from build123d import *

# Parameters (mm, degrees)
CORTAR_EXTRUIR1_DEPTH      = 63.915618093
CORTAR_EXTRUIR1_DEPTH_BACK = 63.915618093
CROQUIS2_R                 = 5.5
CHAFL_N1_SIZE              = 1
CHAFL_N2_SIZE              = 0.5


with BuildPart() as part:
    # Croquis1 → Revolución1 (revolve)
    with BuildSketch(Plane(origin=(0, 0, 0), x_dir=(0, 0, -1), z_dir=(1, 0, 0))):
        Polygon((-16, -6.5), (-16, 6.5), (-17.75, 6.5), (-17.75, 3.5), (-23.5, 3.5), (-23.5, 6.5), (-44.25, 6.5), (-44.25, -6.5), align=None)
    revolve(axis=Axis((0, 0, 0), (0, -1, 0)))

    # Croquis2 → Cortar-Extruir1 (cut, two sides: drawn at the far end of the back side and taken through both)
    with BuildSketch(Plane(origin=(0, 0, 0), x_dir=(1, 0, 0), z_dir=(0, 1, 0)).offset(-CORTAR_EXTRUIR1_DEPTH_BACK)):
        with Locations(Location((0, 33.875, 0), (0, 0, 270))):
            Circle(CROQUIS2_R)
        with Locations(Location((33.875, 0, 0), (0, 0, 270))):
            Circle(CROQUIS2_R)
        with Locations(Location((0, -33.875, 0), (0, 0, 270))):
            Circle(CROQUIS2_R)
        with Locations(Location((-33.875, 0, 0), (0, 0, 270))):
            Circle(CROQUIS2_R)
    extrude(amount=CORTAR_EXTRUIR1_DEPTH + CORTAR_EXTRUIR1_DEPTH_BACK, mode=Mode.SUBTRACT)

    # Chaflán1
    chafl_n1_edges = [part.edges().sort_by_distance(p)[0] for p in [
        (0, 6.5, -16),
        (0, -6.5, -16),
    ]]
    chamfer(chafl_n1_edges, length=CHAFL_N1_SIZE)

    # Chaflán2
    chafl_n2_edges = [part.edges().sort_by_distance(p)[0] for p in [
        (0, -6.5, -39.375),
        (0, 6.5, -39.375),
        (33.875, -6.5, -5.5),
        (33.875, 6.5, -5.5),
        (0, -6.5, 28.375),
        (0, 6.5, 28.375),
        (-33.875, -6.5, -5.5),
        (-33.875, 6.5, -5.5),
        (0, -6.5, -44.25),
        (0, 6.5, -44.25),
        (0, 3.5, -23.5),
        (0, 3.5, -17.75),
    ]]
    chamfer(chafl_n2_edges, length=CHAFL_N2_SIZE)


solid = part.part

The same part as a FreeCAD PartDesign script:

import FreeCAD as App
import Part
import Sketcher
from FreeCAD import Vector


def edges_at(feature, points):
    """Names of the edges that pass closest to the given points."""
    edges = feature.Shape.Edges
    near = lambda p: min(range(len(edges)), key=lambda i: edges[i].distToShape(Part.Vertex(*p))[0])
    return sorted({f"Edge{near(p) + 1}" for p in points})


def add_polygon(sketch, points):
    """Adds a closed chain of lines whose ends are joined by coincident constraints."""
    first, n = sketch.GeometryCount, len(points)
    for a, b in zip(points, points[1:] + points[:1]):
        sketch.addGeometry(Part.LineSegment(App.Vector(*a, 0), App.Vector(*b, 0)), False)
    for i in range(n):
        sketch.addConstraint(Sketcher.Constraint("Coincident", first + i, 2, first + (i + 1) % n, 1))

doc = App.newDocument("Part")
params = doc.addObject("Spreadsheet::Sheet", "Params")
for row, (alias, value) in enumerate([
    ("sketch1_width", "13 mm"),
    ("sketch1_width2", "3 mm"),
    ("sketch1_height", "1.75 mm"),
    ("sketch1_height2", "5.75 mm"),
    ("sketch1_height3", "20.75 mm"),
    ("revolution_angle", "360 deg"),
    ("sketch2_diameter", "11 mm"),
    ("chamfer_size", "1 mm"),
    ("chamfer2_size", "0.5 mm"),
], start=1):
    params.set(f"A{row}", alias)
    params.set(f"B{row}", "=" + value)
    params.setAlias(f"B{row}", alias)

body = doc.addObject("PartDesign::Body", "Body")

# Sketch on YZ plane
sketch1 = body.newObject("Sketcher::SketchObject", "Sketch")
sketch1.AttachmentSupport = (doc.getObject("YZ_Plane"), [""])
sketch1.MapMode = "FlatFace"
add_polygon(sketch1, [(-6.5, 16), (6.5, 16), (6.5, 17.75), (3.5, 17.75), (3.5, 23.5), (6.5, 23.5), (6.5, 44.25), (-6.5, 44.25)])  # lines 0-7
sketch1.addConstraint(Sketcher.Constraint("Horizontal", 0))
sketch1.addConstraint(Sketcher.Constraint("Vertical", 1))
sketch1.addConstraint(Sketcher.Constraint("Horizontal", 2))
sketch1.addConstraint(Sketcher.Constraint("Vertical", 3))
sketch1.addConstraint(Sketcher.Constraint("Horizontal", 4))
sketch1.addConstraint(Sketcher.Constraint("Vertical", 5))
sketch1.addConstraint(Sketcher.Constraint("Horizontal", 6))
sketch1.addConstraint(Sketcher.Constraint("Vertical", 7))
sketch1.addConstraint(Sketcher.Constraint("Vertical", 1, 2, 4, 2))
sketch1.addConstraint(Sketcher.Constraint("DistanceX", 0, 1, 0, 2, 13.0))
sketch1.addConstraint(Sketcher.Constraint("DistanceX", 2, 2, 2, 1, 3.0))
sketch1.addConstraint(Sketcher.Constraint("DistanceY", -1, 1, 0, 2, 16.0))
sketch1.addConstraint(Sketcher.Constraint("DistanceY", 1, 1, 1, 2, 1.75))
sketch1.addConstraint(Sketcher.Constraint("DistanceY", 3, 1, 3, 2, 5.75))
sketch1.addConstraint(Sketcher.Constraint("DistanceY", 5, 1, 5, 2, 20.75))
sketch1.addConstraint(Sketcher.Constraint("DistanceX", -1, 1, 0, 2, 6.5))
sketch1.setExpression("Constraints[17]", "Params.sketch1_width")
sketch1.setExpression("Constraints[18]", "Params.sketch1_width2")
sketch1.setExpression("Constraints[20]", "Params.sketch1_height")
sketch1.setExpression("Constraints[21]", "Params.sketch1_height2")
sketch1.setExpression("Constraints[22]", "Params.sketch1_height3")
revolution = body.newObject("PartDesign::Revolution", "Revolution")
revolution.Profile = sketch1
revolution.ReferenceAxis = (sketch1, ["H_Axis"])
revolution.setExpression("Angle", "Params.revolution_angle")

# Sketch on XZ plane
sketch2 = body.newObject("Sketcher::SketchObject", "Sketch001")
sketch2.AttachmentSupport = (doc.getObject("XZ_Plane"), [""])
sketch2.MapMode = "FlatFace"
sketch2.addGeometry(Part.Circle(Vector(0, -33.875, 0), Vector(0, 0, 1), 5.5), False)
sketch2.addGeometry(Part.Circle(Vector(33.875, 0, 0), Vector(0, 0, 1), 5.5), False)
sketch2.addGeometry(Part.Circle(Vector(0, 33.875, 0), Vector(0, 0, 1), 5.5), False)
sketch2.addGeometry(Part.Circle(Vector(-33.875, 0, 0), Vector(0, 0, 1), 5.5), False)
sketch2.addConstraint(Sketcher.Constraint("Equal", 0, 1))
sketch2.addConstraint(Sketcher.Constraint("Equal", 1, 2))
sketch2.addConstraint(Sketcher.Constraint("Equal", 2, 3))
sketch2.addConstraint(Sketcher.Constraint("Symmetric", 0, 3, 2, 3, -1, 1))
sketch2.addConstraint(Sketcher.Constraint("Symmetric", 1, 3, 3, 3, -1, 1))
sketch2.addConstraint(Sketcher.Constraint("PointOnObject", 0, 3, -2))
sketch2.addConstraint(Sketcher.Constraint("PointOnObject", 1, 3, -1))
sketch2.addConstraint(Sketcher.Constraint("Diameter", 0, 11.0))
sketch2.addConstraint(Sketcher.Constraint("DistanceY", 0, 3, 2, 3, 67.75))
sketch2.addConstraint(Sketcher.Constraint("DistanceX", 3, 3, 1, 3, 67.75))
sketch2.setExpression("Constraints[7]", "Params.sketch2_diameter")
pocket1 = body.newObject("PartDesign::Pocket", "Pocket")
pocket1.Profile = sketch2
pocket1.Type = "ThroughAll"
pocket1.Midplane = True
doc.recompute()

chamfer = body.newObject("PartDesign::Chamfer", "Chamfer")
chamfer.Base = (pocket1, edges_at(pocket1, [(0, 6.5, -16), (0, -6.5, -16)]))
chamfer.setExpression("Size", "Params.chamfer_size")
doc.recompute()

chamfer2 = body.newObject("PartDesign::Chamfer", "Chamfer001")
chamfer2.Base = (chamfer, edges_at(chamfer, [
    (0, -6.5, -39.375),
    (0, 6.5, -39.375),
    (33.875, -6.5, -5.5),
    (33.875, 6.5, -5.5),
    (0, -6.5, 28.375),
    (0, 6.5, 28.375),
    (-33.875, -6.5, -5.5),
    (-33.875, 6.5, -5.5),
    (0, -6.5, -44.25),
    (0, 6.5, -44.25),
    (0, 3.5, -23.5),
    (0, 3.5, -17.75),
]))
chamfer2.setExpression("Size", "Params.chamfer2_size")

doc.recompute()
